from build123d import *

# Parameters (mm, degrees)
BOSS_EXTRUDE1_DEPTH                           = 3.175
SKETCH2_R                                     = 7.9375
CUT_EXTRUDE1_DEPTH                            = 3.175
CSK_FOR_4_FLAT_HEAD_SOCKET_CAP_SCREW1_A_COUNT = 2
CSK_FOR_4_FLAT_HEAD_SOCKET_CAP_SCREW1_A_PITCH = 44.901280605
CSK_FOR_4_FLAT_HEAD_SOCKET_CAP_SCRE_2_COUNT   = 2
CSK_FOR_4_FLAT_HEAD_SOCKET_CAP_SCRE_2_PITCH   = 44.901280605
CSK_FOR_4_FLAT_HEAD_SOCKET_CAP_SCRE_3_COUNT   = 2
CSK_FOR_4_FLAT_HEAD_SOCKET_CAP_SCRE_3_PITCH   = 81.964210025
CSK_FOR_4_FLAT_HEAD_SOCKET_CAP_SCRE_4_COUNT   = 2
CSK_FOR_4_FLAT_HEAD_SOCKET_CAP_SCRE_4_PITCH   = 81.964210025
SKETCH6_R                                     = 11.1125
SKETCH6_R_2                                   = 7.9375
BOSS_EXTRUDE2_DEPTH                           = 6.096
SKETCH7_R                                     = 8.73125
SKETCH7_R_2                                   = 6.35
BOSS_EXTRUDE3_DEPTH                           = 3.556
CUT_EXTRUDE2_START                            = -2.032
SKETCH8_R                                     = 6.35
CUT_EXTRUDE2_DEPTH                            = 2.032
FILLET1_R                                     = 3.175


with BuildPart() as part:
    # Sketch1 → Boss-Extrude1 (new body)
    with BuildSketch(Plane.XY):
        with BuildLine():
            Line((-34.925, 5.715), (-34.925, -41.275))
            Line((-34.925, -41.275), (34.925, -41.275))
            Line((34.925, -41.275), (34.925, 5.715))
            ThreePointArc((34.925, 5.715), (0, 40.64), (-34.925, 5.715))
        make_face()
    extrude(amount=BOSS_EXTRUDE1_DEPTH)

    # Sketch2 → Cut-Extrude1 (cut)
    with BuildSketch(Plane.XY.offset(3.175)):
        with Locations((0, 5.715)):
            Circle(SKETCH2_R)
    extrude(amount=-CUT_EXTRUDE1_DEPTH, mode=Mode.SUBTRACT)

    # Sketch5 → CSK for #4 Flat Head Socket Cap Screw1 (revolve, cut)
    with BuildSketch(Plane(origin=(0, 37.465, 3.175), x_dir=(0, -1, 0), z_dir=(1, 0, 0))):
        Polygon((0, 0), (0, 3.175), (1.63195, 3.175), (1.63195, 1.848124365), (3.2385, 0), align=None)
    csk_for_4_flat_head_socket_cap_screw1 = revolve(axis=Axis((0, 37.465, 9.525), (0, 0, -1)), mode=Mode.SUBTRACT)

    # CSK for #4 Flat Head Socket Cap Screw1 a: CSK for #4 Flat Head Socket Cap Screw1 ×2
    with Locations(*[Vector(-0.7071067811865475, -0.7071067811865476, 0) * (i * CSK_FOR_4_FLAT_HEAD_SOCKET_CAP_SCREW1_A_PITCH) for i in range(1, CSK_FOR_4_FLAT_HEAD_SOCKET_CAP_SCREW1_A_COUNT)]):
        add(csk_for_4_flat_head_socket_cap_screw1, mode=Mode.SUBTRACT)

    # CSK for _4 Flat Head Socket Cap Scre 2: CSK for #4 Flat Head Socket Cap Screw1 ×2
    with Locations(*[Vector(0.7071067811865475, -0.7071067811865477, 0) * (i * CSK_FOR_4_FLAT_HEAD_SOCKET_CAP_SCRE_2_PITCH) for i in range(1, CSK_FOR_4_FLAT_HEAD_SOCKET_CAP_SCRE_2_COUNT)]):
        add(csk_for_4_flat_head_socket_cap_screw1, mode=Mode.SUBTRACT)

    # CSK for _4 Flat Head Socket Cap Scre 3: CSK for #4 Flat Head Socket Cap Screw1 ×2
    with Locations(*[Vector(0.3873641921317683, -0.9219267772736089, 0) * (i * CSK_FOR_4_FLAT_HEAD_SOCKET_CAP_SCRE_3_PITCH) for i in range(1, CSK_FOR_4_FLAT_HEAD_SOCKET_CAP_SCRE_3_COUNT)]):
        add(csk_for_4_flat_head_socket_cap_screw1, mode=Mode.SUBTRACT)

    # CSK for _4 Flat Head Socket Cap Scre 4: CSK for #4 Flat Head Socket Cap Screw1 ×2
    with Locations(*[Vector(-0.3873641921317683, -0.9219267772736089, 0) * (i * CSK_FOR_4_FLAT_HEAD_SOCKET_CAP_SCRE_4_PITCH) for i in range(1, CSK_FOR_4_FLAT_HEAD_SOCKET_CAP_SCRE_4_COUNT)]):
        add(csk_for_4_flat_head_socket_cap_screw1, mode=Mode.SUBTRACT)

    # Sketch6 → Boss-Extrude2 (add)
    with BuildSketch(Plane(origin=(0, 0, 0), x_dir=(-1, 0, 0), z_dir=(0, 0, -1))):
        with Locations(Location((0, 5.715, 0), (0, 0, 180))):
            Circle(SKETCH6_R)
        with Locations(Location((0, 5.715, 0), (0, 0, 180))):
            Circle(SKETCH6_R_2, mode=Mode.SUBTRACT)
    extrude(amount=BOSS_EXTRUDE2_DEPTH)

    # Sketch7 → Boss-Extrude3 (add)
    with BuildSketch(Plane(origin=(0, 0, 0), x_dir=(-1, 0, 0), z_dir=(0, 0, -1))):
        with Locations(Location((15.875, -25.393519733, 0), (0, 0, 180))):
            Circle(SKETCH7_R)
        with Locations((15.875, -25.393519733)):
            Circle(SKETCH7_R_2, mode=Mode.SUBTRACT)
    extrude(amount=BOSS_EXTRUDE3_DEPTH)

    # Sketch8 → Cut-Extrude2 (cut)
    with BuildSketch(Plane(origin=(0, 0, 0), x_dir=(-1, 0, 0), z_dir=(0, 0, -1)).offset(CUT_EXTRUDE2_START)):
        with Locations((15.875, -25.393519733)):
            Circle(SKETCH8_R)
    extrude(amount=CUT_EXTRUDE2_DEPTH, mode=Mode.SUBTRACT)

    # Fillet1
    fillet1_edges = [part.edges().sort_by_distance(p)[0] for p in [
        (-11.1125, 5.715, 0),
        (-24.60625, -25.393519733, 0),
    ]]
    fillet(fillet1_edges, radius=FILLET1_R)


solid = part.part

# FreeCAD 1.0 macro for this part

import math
import FreeCAD as App
import Part
import Sketcher
Q = App.Units.Quantity


def edges_at(feature, points):
    """Names of the edges that pass closest to the given points."""
    edges = feature.Shape.Edges
    near = lambda p: min(range(len(edges)), key=lambda i: edges[i].distToShape(Part.Vertex(*p))[0])
    return sorted({f"Edge{near(p) + 1}" for p in points})

doc = App.newDocument("Part")
body = doc.addObject("PartDesign::Body", "Body")

sketch1 = body.newObject("Sketcher::SketchObject", "Sketch")
sketch1.AttachmentSupport = (doc.getObject("XY_Plane"), [""])
sketch1.MapMode = "FlatFace"
sketch1.addGeometry([
    Part.LineSegment(App.Vector(-35, 6, 0), App.Vector(-35, -41, 0)),
    Part.LineSegment(App.Vector(-35, -41, 0), App.Vector(35, -41, 0)),
    Part.LineSegment(App.Vector(35, -41, 0), App.Vector(35, 6, 0)),
    Part.ArcOfCircle(Part.Circle(App.Vector(0, 6, 0), App.Vector(0, 0, 1), 35), math.radians(0), math.radians(180)),
], False)
sketch1.addConstraint([
    Sketcher.Constraint("Coincident", 0, 2, 1, 1),
    Sketcher.Constraint("Coincident", 1, 2, 2, 1),
    Sketcher.Constraint("Tangent", 2, 2, 3, 1),
    Sketcher.Constraint("Tangent", 3, 2, 0, 1),
    Sketcher.Constraint("Vertical", 0),
    Sketcher.Constraint("Horizontal", 1),
    Sketcher.Constraint("Vertical", 2),
    Sketcher.Constraint("PointOnObject", 3, 3, -2),
    Sketcher.Constraint("Radius", 3, Q("1.375 in")),
    Sketcher.Constraint("DistanceY", 0, 2, 0, 1, Q("1.85 in")),
    Sketcher.Constraint("DistanceY", -1, 1, 3, 3, Q("0.225 in")),
])
pad1 = body.newObject("PartDesign::Pad", "Pad")
pad1.Profile = sketch1
pad1.Length = Q("0.125 in")

sketch2 = body.newObject("Sketcher::SketchObject", "Sketch001")
sketch2.AttachmentSupport = (doc.getObject("XY_Plane"), [""])
sketch2.MapMode = "FlatFace"
sketch2.AttachmentOffset = App.Placement(App.Vector(0, 0, 0.125 * 25.4), App.Rotation())
sketch2.addGeometry(Part.Circle(App.Vector(0, 6, 0), App.Vector(0, 0, 1), 8), False)
sketch2.addConstraint([
    Sketcher.Constraint("PointOnObject", 0, 3, -2),
    Sketcher.Constraint("Diameter", 0, Q("0.625 in")),
    Sketcher.Constraint("DistanceY", -1, 1, 0, 3, Q("0.225 in")),
])
pocket1 = body.newObject("PartDesign::Pocket", "Pocket")
pocket1.Profile = sketch2
pocket1.Length = Q("0.125 in")

sketch3 = body.newObject("Sketcher::SketchObject", "Sketch002")
sketch3.AttachmentSupport = (doc.getObject("YZ_Plane"), [""])
sketch3.MapMode = "FlatFace"
sketch3.addGeometry([
    Part.LineSegment(App.Vector(37.5, 0, 0), App.Vector(37.5, 3.2, 0)),
    Part.LineSegment(App.Vector(37.5, 3.2, 0), App.Vector(34.2, 3.2, 0)),
    Part.LineSegment(App.Vector(34.2, 3.2, 0), App.Vector(35.8, 1.3, 0)),
    Part.LineSegment(App.Vector(35.8, 1.3, 0), App.Vector(35.8, 0, 0)),
    Part.LineSegment(App.Vector(35.8, 0, 0), App.Vector(37.5, 0, 0)),
], False)
sketch3.addGeometry(Part.LineSegment(App.Vector(37.5, 3.2, 0), App.Vector(37.5, 0, 0)), True)
sketch3.addConstraint([
    Sketcher.Constraint("Coincident", 0, 2, 1, 1),
    Sketcher.Constraint("Coincident", 1, 2, 2, 1),
    Sketcher.Constraint("Coincident", 2, 2, 3, 1),
    Sketcher.Constraint("Coincident", 3, 2, 4, 1),
    Sketcher.Constraint("Coincident", 4, 2, 0, 1),
    Sketcher.Constraint("Vertical", 0),
    Sketcher.Constraint("Horizontal", 1),
    Sketcher.Constraint("Vertical", 3),
    Sketcher.Constraint("Horizontal", 4),
    Sketcher.Constraint("Vertical", 5),
    Sketcher.Constraint("Coincident", 5, 1, 0, 2),
    Sketcher.Constraint("PointOnObject", 3, 2, -1),
    Sketcher.Constraint("PointOnObject", 5, 2, -1),
    Sketcher.Constraint("Angle", 2, Q("-49 deg")),
    Sketcher.Constraint("DistanceY", 0, 1, 0, 2, Q("0.125 in")),
    Sketcher.Constraint("DistanceX", 1, 2, 1, 1, Q("0.1275 in")),
    Sketcher.Constraint("DistanceX", -1, 1, 0, 2, Q("1.475 in")),
    Sketcher.Constraint("DistanceX", 4, 1, 4, 2, 1.63195),
])
groove = body.newObject("PartDesign::Groove", "Groove")
groove.Profile = sketch3
groove.ReferenceAxis = (sketch3, ["Axis0"])
groove.Angle = 360
doc.recompute()

datumline = body.newObject("PartDesign::Line", "DatumLine")
datumline.Placement = App.Placement(App.Vector(0, 0, 0), App.Rotation(App.Vector(0, 0, 1), App.Vector(-0.707106781, -0.707106781, 0)))
linearpattern = body.newObject("PartDesign::LinearPattern", "LinearPattern")
linearpattern.Originals = [groove]
linearpattern.Direction = (datumline, [""])
linearpattern.Mode = "offset"
linearpattern.Offset = 44.901281
linearpattern.Occurrences = 2
body.Tip = linearpattern
doc.recompute()

datumline2 = body.newObject("PartDesign::Line", "DatumLine001")
datumline2.Placement = App.Placement(App.Vector(0, 0, 0), App.Rotation(App.Vector(0, 0, 1), App.Vector(0.707106781, -0.707106781, 0)))
linearpattern2 = body.newObject("PartDesign::LinearPattern", "LinearPattern001")
linearpattern2.Originals = [groove]
linearpattern2.Direction = (datumline2, [""])
linearpattern2.Mode = "offset"
linearpattern2.Offset = 44.901281
linearpattern2.Occurrences = 2
body.Tip = linearpattern2
doc.recompute()

datumline3 = body.newObject("PartDesign::Line", "DatumLine002")
datumline3.Placement = App.Placement(App.Vector(0, 0, 0), App.Rotation(App.Vector(0, 0, 1), App.Vector(0.387364192, -0.921926777, 0)))
linearpattern3 = body.newObject("PartDesign::LinearPattern", "LinearPattern002")
linearpattern3.Originals = [groove]
linearpattern3.Direction = (datumline3, [""])
linearpattern3.Mode = "offset"
linearpattern3.Offset = 81.96421
linearpattern3.Occurrences = 2
body.Tip = linearpattern3
doc.recompute()

datumline4 = body.newObject("PartDesign::Line", "DatumLine003")
datumline4.Placement = App.Placement(App.Vector(0, 0, 0), App.Rotation(App.Vector(0, 0, 1), App.Vector(-0.387364192, -0.921926777, 0)))
linearpattern4 = body.newObject("PartDesign::LinearPattern", "LinearPattern003")
linearpattern4.Originals = [groove]
linearpattern4.Direction = (datumline4, [""])
linearpattern4.Mode = "offset"
linearpattern4.Offset = 81.96421
linearpattern4.Occurrences = 2
body.Tip = linearpattern4

sketch4 = body.newObject("Sketcher::SketchObject", "Sketch003")
sketch4.AttachmentSupport = (doc.getObject("XY_Plane"), [""])
sketch4.MapMode = "FlatFace"
sketch4.addGeometry([
    Part.Circle(App.Vector(0, 6, 0), App.Vector(0, 0, 1), 11),
    Part.Circle(App.Vector(0, 6, 0), App.Vector(0, 0, 1), 8),
], False)
sketch4.addConstraint([
    Sketcher.Constraint("Coincident", 1, 3, 0, 3),
    Sketcher.Constraint("PointOnObject", 0, 3, -2),
    Sketcher.Constraint("Diameter", 0, Q("0.875 in")),
    Sketcher.Constraint("Diameter", 1, Q("0.625 in")),
    Sketcher.Constraint("DistanceY", -1, 1, 0, 3, Q("0.225 in")),
])
pad2 = body.newObject("PartDesign::Pad", "Pad001")
pad2.Profile = sketch4
pad2.Length = Q("0.24 in")
pad2.Reversed = True

sketch5 = body.newObject("Sketcher::SketchObject", "Sketch004")
sketch5.AttachmentSupport = (doc.getObject("XY_Plane"), [""])
sketch5.MapMode = "FlatFace"
sketch5.addGeometry([
    Part.Circle(App.Vector(-16, -25, 0), App.Vector(0, 0, 1), 9),
    Part.Circle(App.Vector(-16, -25, 0), App.Vector(0, 0, 1), 6),
], False)
sketch5.addConstraint([
    Sketcher.Constraint("Coincident", 1, 3, 0, 3),
    Sketcher.Constraint("Diameter", 1, Q("0.5 in")),
    Sketcher.Constraint("Diameter", 0, Q("0.6875 in")),
    Sketcher.Constraint("DistanceX", 0, 3, -1, 1, Q("0.625 in")),
    Sketcher.Constraint("DistanceY", 0, 3, -1, 1, 25.39352),
])
pad3 = body.newObject("PartDesign::Pad", "Pad002")
pad3.Profile = sketch5
pad3.Length = Q("0.14 in")
pad3.Reversed = True

sketch6 = body.newObject("Sketcher::SketchObject", "Sketch005")
sketch6.AttachmentSupport = (doc.getObject("XY_Plane"), [""])
sketch6.MapMode = "FlatFace"
sketch6.AttachmentOffset = App.Placement(App.Vector(0, 0, 0.08 * 25.4), App.Rotation())
sketch6.addGeometry(Part.Circle(App.Vector(-16, -25, 0), App.Vector(0, 0, 1), 6), False)
sketch6.addConstraint([
    Sketcher.Constraint("Diameter", 0, Q("0.5 in")),
    Sketcher.Constraint("DistanceX", 0, 3, -1, 1, Q("0.625 in")),
    Sketcher.Constraint("DistanceY", 0, 3, -1, 1, 25.39352),
])
pocket2 = body.newObject("PartDesign::Pocket", "Pocket001")
pocket2.Profile = sketch6
pocket2.Length = Q("0.08 in")
doc.recompute()

fillet = body.newObject("PartDesign::Fillet", "Fillet")
fillet.Base = (pocket2, edges_at(pocket2, [(-11.113, 5.715, 0), (-24.606, -25.394, 0)]))
fillet.Radius = Q("0.125 in")

doc.recompute()
